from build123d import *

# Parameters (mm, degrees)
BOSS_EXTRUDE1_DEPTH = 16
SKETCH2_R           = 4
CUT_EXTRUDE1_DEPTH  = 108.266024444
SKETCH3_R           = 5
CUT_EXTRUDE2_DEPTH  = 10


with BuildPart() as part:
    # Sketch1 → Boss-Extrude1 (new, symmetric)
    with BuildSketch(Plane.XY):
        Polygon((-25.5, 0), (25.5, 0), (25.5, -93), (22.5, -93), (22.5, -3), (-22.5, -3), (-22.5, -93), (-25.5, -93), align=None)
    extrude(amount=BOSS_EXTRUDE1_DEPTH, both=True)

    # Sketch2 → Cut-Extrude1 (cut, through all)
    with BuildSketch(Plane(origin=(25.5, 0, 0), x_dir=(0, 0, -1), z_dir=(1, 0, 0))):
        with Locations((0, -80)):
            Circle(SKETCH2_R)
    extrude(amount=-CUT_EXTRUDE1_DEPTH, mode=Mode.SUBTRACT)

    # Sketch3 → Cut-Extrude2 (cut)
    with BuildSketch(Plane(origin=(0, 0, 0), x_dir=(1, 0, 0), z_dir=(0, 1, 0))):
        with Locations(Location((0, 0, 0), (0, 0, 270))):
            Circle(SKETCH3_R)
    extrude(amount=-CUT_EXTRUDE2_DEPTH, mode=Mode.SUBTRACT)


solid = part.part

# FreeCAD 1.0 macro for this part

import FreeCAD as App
import Part
import Sketcher

V = App.Vector
Q = App.Units.Quantity


def add_polygon(sketch, points):
    """Adds a closed chain of lines whose ends are joined by coincident constraints."""
    first, n = sketch.GeometryCount, len(points)
    for a, b in zip(points, points[1:] + points[:1]):
        sketch.addGeometry(Part.LineSegment(App.Vector(*a, 0), App.Vector(*b, 0)), False)
    for i in range(n):
        sketch.addConstraint(Sketcher.Constraint("Coincident", first + i, 2, first + (i + 1) % n, 1))

doc = App.newDocument("Part")
body = doc.addObject("PartDesign::Body", "Body")

# Sketch on XY plane
sketch1 = body.newObject("Sketcher::SketchObject", "Sketch")
sketch1.AttachmentSupport = (doc.getObject("XY_Plane"), [""])
sketch1.MapMode = "FlatFace"
add_polygon(sketch1, [(25.5, 0), (-25.5, 0), (-25.5, -93), (-22.5, -93), (-22.5, -3), (22.5, -3), (22.5, -93), (25.5, -93)])  # lines 0-7
sketch1.addConstraint(Sketcher.Constraint("Horizontal", 0))
sketch1.addConstraint(Sketcher.Constraint("Vertical", 1))
sketch1.addConstraint(Sketcher.Constraint("Horizontal", 2))
sketch1.addConstraint(Sketcher.Constraint("Vertical", 3))
sketch1.addConstraint(Sketcher.Constraint("Horizontal", 4))
sketch1.addConstraint(Sketcher.Constraint("Vertical", 5))
sketch1.addConstraint(Sketcher.Constraint("Horizontal", 6))
sketch1.addConstraint(Sketcher.Constraint("Vertical", 7))
sketch1.addConstraint(Sketcher.Constraint("Symmetric", 0, 2, 7, 2, -1, 1))
sketch1.addConstraint(Sketcher.Constraint("Symmetric", 2, 2, 5, 2, -2))
sketch1.addConstraint(Sketcher.Constraint("DistanceX", 0, 2, 0, 1, Q("51 mm")))
sketch1.addConstraint(Sketcher.Constraint("DistanceX", 2, 1, 2, 2, Q("3 mm")))
sketch1.addConstraint(Sketcher.Constraint("DistanceY", 1, 2, 1, 1, Q("93 mm")))
sketch1.addConstraint(Sketcher.Constraint("DistanceY", 3, 1, 3, 2, Q("90 mm")))
pad1 = body.newObject("PartDesign::Pad", "Pad")
pad1.Profile = sketch1
pad1.Length = 32
pad1.Midplane = True

# Sketch on YZ plane
sketch2 = body.newObject("Sketcher::SketchObject", "Sketch001")
sketch2.AttachmentSupport = (doc.getObject("YZ_Plane"), [""])
sketch2.MapMode = "FlatFace"
sketch2.AttachmentOffset = App.Placement(V(0, 0, 25.5), App.Rotation())
sketch2.addGeometry(Part.Circle(V(-80, 0, 0), V(0, 0, 1), 4), False)
sketch2.addConstraint(Sketcher.Constraint("PointOnObject", 0, 3, -1))
sketch2.addConstraint(Sketcher.Constraint("Diameter", 0, Q("8 mm")))
sketch2.addConstraint(Sketcher.Constraint("DistanceX", 0, 3, -1, 1, Q("80 mm")))
pocket1 = body.newObject("PartDesign::Pocket", "Pocket")
pocket1.Profile = sketch2
pocket1.Type = "ThroughAll"

# Sketch on XZ plane
sketch3 = body.newObject("Sketcher::SketchObject", "Sketch002")
sketch3.AttachmentSupport = (doc.getObject("XZ_Plane"), [""])
sketch3.MapMode = "FlatFace"
sketch3.addGeometry(Part.Circle(V(0, 0, 0), V(0, 0, 1), 5), False)
sketch3.addConstraint(Sketcher.Constraint("Coincident", 0, 3, -1, 1))
sketch3.addConstraint(Sketcher.Constraint("Diameter", 0, Q("10 mm")))
pocket2 = body.newObject("PartDesign::Pocket", "Pocket001")
pocket2.Profile = sketch3
pocket2.Length = 10
pocket2.Reversed = True

doc.recompute()
